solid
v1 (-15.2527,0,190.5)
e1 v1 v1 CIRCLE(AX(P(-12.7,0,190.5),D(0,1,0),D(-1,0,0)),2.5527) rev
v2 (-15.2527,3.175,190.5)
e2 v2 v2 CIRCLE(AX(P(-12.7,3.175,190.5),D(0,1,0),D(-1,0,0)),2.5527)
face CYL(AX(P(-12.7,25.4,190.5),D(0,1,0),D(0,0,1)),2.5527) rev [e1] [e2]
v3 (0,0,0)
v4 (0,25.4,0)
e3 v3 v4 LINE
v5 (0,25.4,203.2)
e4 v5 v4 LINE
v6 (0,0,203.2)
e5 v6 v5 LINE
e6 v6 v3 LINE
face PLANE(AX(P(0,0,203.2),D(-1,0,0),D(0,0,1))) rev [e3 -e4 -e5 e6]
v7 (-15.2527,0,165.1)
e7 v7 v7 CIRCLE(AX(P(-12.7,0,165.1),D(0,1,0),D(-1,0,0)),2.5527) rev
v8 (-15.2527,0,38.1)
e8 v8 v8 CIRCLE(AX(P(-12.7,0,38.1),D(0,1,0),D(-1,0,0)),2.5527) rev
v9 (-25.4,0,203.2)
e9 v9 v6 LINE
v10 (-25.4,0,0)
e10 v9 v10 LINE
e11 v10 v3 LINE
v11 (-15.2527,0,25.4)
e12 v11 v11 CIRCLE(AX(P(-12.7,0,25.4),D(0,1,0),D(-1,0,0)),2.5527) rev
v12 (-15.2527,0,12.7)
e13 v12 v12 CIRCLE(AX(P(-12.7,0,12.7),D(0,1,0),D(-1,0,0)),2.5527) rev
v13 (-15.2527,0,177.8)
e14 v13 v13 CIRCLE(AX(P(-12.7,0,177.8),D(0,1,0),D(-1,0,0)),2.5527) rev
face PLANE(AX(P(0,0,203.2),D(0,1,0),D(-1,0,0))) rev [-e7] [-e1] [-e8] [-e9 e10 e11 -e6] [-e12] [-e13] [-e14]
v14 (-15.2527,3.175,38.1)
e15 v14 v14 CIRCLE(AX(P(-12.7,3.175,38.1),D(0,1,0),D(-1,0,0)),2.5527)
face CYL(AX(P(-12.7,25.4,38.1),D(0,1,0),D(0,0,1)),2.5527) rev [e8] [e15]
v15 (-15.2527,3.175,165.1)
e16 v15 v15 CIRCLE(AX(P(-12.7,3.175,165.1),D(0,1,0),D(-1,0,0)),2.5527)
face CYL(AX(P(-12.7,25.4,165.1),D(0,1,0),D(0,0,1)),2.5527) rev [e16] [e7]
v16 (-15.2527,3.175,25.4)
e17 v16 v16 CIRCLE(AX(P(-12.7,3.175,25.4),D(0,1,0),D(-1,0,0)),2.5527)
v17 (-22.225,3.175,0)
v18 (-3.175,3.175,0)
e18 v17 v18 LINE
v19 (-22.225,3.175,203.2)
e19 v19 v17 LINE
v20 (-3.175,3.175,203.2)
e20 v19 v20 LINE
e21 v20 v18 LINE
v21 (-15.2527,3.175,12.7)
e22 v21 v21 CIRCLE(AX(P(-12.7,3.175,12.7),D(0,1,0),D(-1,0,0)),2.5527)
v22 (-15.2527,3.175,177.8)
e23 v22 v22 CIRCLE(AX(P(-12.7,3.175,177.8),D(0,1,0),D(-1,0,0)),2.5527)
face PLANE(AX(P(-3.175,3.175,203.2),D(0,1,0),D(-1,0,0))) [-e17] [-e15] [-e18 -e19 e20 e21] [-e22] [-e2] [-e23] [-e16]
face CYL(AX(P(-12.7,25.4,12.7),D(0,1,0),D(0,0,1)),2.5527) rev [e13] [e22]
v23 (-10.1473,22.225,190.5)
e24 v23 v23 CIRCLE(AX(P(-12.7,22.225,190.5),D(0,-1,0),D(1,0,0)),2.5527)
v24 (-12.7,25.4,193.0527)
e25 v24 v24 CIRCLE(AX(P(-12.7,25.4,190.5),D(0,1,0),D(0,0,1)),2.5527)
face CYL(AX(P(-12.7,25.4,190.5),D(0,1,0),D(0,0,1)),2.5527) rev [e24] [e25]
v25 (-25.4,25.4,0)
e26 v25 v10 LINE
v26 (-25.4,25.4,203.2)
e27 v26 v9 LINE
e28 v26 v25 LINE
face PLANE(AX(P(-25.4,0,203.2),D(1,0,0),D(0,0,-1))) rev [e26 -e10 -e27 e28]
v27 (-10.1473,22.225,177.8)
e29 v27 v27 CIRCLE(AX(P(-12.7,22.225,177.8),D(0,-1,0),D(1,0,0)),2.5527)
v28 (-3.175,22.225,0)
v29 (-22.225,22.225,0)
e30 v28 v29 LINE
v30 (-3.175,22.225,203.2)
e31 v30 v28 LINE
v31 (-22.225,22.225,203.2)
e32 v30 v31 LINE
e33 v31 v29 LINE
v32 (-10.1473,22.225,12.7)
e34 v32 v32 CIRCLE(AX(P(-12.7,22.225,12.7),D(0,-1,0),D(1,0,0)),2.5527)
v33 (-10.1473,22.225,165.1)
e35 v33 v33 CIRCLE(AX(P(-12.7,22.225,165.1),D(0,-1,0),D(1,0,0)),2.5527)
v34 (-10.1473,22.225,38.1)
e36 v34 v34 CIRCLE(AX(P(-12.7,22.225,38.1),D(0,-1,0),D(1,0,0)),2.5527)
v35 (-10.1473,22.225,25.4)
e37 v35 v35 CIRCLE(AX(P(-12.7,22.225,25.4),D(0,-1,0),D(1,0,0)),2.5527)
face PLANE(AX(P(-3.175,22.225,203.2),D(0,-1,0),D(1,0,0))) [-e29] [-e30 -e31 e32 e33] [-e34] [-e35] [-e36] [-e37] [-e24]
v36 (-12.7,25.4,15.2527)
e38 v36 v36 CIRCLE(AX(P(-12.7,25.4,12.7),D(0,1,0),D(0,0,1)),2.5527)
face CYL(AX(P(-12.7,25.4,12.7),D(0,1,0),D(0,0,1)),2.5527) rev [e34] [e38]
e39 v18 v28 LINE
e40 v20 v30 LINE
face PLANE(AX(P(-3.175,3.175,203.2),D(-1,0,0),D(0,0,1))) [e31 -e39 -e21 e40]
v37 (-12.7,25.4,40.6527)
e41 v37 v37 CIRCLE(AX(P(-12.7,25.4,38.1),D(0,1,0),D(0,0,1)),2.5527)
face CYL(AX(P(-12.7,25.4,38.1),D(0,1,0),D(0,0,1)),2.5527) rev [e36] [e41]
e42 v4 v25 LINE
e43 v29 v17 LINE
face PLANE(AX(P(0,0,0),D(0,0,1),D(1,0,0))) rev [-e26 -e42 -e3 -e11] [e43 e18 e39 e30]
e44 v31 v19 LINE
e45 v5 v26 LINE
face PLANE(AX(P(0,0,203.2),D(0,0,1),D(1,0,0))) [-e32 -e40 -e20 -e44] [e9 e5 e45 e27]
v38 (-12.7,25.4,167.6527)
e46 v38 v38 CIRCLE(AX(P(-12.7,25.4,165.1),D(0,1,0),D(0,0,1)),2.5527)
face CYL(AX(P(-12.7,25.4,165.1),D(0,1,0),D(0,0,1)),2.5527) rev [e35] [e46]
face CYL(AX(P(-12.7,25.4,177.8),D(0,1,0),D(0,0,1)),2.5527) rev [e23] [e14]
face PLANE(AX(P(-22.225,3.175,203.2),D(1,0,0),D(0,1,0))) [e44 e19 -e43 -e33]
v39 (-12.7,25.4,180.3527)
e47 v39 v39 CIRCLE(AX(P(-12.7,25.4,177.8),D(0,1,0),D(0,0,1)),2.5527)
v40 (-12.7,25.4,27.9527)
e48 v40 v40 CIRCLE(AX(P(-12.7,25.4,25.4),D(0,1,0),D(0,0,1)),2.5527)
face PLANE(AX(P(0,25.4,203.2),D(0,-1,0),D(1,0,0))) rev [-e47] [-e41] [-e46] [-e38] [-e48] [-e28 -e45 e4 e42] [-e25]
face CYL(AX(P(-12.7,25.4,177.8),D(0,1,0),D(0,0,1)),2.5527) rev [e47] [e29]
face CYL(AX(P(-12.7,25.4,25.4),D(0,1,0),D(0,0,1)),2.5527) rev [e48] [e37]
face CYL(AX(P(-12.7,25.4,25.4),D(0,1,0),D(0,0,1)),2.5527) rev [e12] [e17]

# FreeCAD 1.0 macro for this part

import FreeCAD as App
import Part
import Sketcher
Q = App.Units.Quantity


def add_polygon(sketch, points):
    """Adds a closed chain of lines whose ends are joined by coincident constraints."""
    first, n = sketch.GeometryCount, len(points)
    for a, b in zip(points, points[1:] + points[:1]):
        sketch.addGeometry(Part.LineSegment(App.Vector(*a, 0), App.Vector(*b, 0)), False)
    for i in range(n):
        sketch.addConstraint(Sketcher.Constraint("Coincident", first + i, 2, first + (i + 1) % n, 1))

doc = App.newDocument("Part")
body = doc.addObject("PartDesign::Body", "Body")

sketch1 = doc.addObject("Sketcher::SketchObject", "Sketch")
body.addObject(sketch1)
sketch1.AttachmentSupport = (doc.XY_Plane, [""])
sketch1.MapMode = "FlatFace"
add_polygon(sketch1, [(-25, 25), (-25, 0), (0, 0), (0, 25)])
add_polygon(sketch1, [(-3, 3), (-22, 3), (-22, 22), (-3, 22)])
sketch1.addConstraint([
    Sketcher.Constraint("Vertical", 0),
    Sketcher.Constraint("Horizontal", 1),
    Sketcher.Constraint("Vertical", 2),
    Sketcher.Constraint("Horizontal", 3),
    Sketcher.Constraint("Horizontal", 4),
    Sketcher.Constraint("Vertical", 5),
    Sketcher.Constraint("Horizontal", 6),
    Sketcher.Constraint("Vertical", 7),
    Sketcher.Constraint("Coincident", 1, 2, -1, 1),
    Sketcher.Constraint("Equal", 3, 0),
    Sketcher.Constraint("Equal", 6, 5),
    Sketcher.Constraint("DistanceX", 1, 1, 1, 2, Q("1 in")),
    Sketcher.Constraint("DistanceX", 4, 2, 4, 1, Q("0.75 in")),
    Sketcher.Constraint("DistanceX", 4, 2, -1, 1, Q("0.875 in")),
    Sketcher.Constraint("DistanceY", -1, 1, 4, 2, Q("0.125 in")),
])
pad1 = doc.addObject("PartDesign::Pad", "Pad")
body.addObject(pad1)
pad1.Profile = sketch1
pad1.Length = Q("8 in")

sketch2 = doc.addObject("Sketcher::SketchObject", "Sketch001")
body.addObject(sketch2)
sketch2.AttachmentSupport = (doc.XZ_Plane, [""])
sketch2.MapMode = "FlatFace"
sketch2.AttachmentOffset = App.Placement(App.Vector(0, 0, -1 * 25.4), App.Rotation())
sketch2.addGeometry([
    Part.Circle(App.Vector(-12.7, 165.1, 0), App.Vector(0, 0, 1), 2.6),
    Part.Circle(App.Vector(-12.7, 177.8, 0), App.Vector(0, 0, 1), 2.6),
    Part.Circle(App.Vector(-12.7, 190.5, 0), App.Vector(0, 0, 1), 2.6),
    Part.Circle(App.Vector(-12.7, 12.7, 0), App.Vector(0, 0, 1), 2.6),
    Part.Circle(App.Vector(-12.7, 25.4, 0), App.Vector(0, 0, 1), 2.6),
    Part.Circle(App.Vector(-12.7, 38.1, 0), App.Vector(0, 0, 1), 2.6),
], False)
sketch2.addConstraint([
    Sketcher.Constraint("Equal", 0, 1),
    Sketcher.Constraint("Equal", 1, 2),
    Sketcher.Constraint("Equal", 2, 3),
    Sketcher.Constraint("Equal", 3, 4),
    Sketcher.Constraint("Equal", 4, 5),
    Sketcher.Constraint("Vertical", 0, 3, 1, 3),
    Sketcher.Constraint("Vertical", 1, 3, 2, 3),
    Sketcher.Constraint("Vertical", 2, 3, 3, 3),
    Sketcher.Constraint("Vertical", 3, 3, 4, 3),
    Sketcher.Constraint("Vertical", 4, 3, 5, 3),
    Sketcher.Constraint("Diameter", 0, Q("0.201 in")),
    Sketcher.Constraint("DistanceY", -1, 1, 1, 3, Q("7 in")),
    Sketcher.Constraint("DistanceY", -1, 1, 4, 3, Q("1 in")),
    Sketcher.Constraint("DistanceY", 0, 3, 2, 3, Q("1 in")),
    Sketcher.Constraint("DistanceY", 3, 3, 0, 3, Q("6 in")),
    Sketcher.Constraint("DistanceY", 3, 3, 5, 3, Q("1 in")),
    Sketcher.Constraint("DistanceX", 0, 3, -1, 1, Q("0.5 in")),
    Sketcher.Constraint("DistanceY", -1, 1, 0, 3, Q("6.5 in")),
])
doc.recompute()
hole = doc.addObject("PartDesign::Hole", "Hole")
body.addObject(hole)
hole.Profile = sketch2
hole.ThreadType = "None"
hole.Diameter = Q("0.201 in")
hole.DepthType = "ThroughAll"
hole.Reversed = True

doc.recompute()
